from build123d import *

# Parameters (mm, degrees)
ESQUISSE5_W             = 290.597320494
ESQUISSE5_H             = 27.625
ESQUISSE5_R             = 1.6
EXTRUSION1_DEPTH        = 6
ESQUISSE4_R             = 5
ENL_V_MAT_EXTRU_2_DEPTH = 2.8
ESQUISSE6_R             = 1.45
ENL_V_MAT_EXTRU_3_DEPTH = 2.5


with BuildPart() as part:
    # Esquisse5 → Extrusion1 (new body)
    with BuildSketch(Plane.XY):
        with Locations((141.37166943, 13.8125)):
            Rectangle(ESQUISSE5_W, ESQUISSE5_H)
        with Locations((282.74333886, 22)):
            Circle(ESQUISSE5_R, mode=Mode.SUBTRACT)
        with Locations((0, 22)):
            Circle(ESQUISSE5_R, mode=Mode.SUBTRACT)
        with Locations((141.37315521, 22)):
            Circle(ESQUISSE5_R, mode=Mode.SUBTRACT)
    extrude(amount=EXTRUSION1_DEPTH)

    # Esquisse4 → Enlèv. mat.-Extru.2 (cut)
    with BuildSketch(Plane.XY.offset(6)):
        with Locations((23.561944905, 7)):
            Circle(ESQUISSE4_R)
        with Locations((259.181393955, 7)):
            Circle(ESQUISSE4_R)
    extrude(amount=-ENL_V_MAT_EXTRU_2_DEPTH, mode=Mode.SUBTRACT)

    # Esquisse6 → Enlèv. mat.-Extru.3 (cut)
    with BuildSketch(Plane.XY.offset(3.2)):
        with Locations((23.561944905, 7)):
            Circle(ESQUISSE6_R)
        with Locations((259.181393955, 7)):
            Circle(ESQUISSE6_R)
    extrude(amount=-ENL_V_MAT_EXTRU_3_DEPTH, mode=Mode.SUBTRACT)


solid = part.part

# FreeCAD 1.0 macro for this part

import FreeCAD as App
import Part
import Sketcher
from FreeCAD import Vector

doc = App.newDocument("Part")
body = doc.addObject("PartDesign::Body", "Body")

# Sketch on XY plane
sketch1 = body.newObject("Sketcher::SketchObject", "Sketch")
sketch1.AttachmentSupport = (doc.getObject("XY_Plane"), [""])
sketch1.MapMode = "FlatFace"
sketch1.addGeometry(Part.LineSegment(Vector(-3.9, 27.6, 0), Vector(-3.9, 0, 0)), False)
sketch1.addGeometry(Part.LineSegment(Vector(-3.9, 0, 0), Vector(286.7, 0, 0)), False)
sketch1.addGeometry(Part.LineSegment(Vector(286.7, 0, 0), Vector(286.7, 27.6, 0)), False)
sketch1.addGeometry(Part.LineSegment(Vector(286.7, 27.6, 0), Vector(-3.9, 27.6, 0)), False)
sketch1.addGeometry(Part.Circle(Vector(0, 22, 0), Vector(0, 0, 1), 1.6), False)
sketch1.addGeometry(Part.Circle(Vector(141.4, 22, 0), Vector(0, 0, 1), 1.6), False)
sketch1.addGeometry(Part.Circle(Vector(282.7, 22, 0), Vector(0, 0, 1), 1.6), False)
sketch1.addConstraint(Sketcher.Constraint("Coincident", 0, 2, 1, 1))
sketch1.addConstraint(Sketcher.Constraint("Coincident", 1, 2, 2, 1))
sketch1.addConstraint(Sketcher.Constraint("Coincident", 2, 2, 3, 1))
sketch1.addConstraint(Sketcher.Constraint("Coincident", 3, 2, 0, 1))
sketch1.addConstraint(Sketcher.Constraint("Vertical", 0))
sketch1.addConstraint(Sketcher.Constraint("Horizontal", 1))
sketch1.addConstraint(Sketcher.Constraint("Vertical", 2))
sketch1.addConstraint(Sketcher.Constraint("Horizontal", 3))
sketch1.addConstraint(Sketcher.Constraint("Equal", 4, 5))
sketch1.addConstraint(Sketcher.Constraint("Equal", 5, 6))
sketch1.addConstraint(Sketcher.Constraint("PointOnObject", 4, 3, -2))
sketch1.addConstraint(Sketcher.Constraint("PointOnObject", 0, 2, -1))
sketch1.addConstraint(Sketcher.Constraint("Horizontal", 4, 3, 5, 3))
sketch1.addConstraint(Sketcher.Constraint("Horizontal", 5, 3, 6, 3))
sketch1.addConstraint(Sketcher.Constraint("Diameter", 4, 3.2))
sketch1.addConstraint(Sketcher.Constraint("DistanceY", -1, 1, 4, 3, 22.0))
sketch1.addConstraint(Sketcher.Constraint("DistanceY", 0, 2, 0, 1, 27.625))
sketch1.addConstraint(Sketcher.Constraint("DistanceX", 1, 1, 1, 2, 290.59732))
sketch1.addConstraint(Sketcher.Constraint("DistanceX", -1, 1, 6, 3, 282.743339))
sketch1.addConstraint(Sketcher.Constraint("DistanceX", 0, 2, -1, 1, 3.926991))
sketch1.addConstraint(Sketcher.Constraint("DistanceX", -1, 1, 5, 3, 141.373155))
pad1 = body.newObject("PartDesign::Pad", "Pad")
pad1.Profile = sketch1
pad1.Length = 6

# Sketch on XY plane
sketch2 = body.newObject("Sketcher::SketchObject", "Sketch001")
sketch2.AttachmentSupport = (doc.getObject("XY_Plane"), [""])
sketch2.MapMode = "FlatFace"
sketch2.AttachmentOffset = App.Placement(Vector(0, 0, 6), App.Rotation())
sketch2.addGeometry(Part.Circle(Vector(24, 7, 0), Vector(0, 0, 1), 5), False)
sketch2.addGeometry(Part.Circle(Vector(259, 7, 0), Vector(0, 0, 1), 5), False)
sketch2.addConstraint(Sketcher.Constraint("Equal", 0, 1))
sketch2.addConstraint(Sketcher.Constraint("Horizontal", 0, 3, 1, 3))
sketch2.addConstraint(Sketcher.Constraint("Diameter", 0, 10.0))
sketch2.addConstraint(Sketcher.Constraint("DistanceY", -1, 1, 0, 3, 7.0))
sketch2.addConstraint(Sketcher.Constraint("DistanceX", 0, 3, 1, 3, 235.619449))
sketch2.addConstraint(Sketcher.Constraint("DistanceX", -1, 1, 0, 3, 23.561945))
pocket1 = body.newObject("PartDesign::Pocket", "Pocket")
pocket1.Profile = sketch2
pocket1.Length = 2.8

# Sketch on XY plane
sketch3 = body.newObject("Sketcher::SketchObject", "Sketch002")
sketch3.AttachmentSupport = (doc.getObject("XY_Plane"), [""])
sketch3.MapMode = "FlatFace"
sketch3.AttachmentOffset = App.Placement(Vector(0, 0, 3.2), App.Rotation())
sketch3.addGeometry(Part.Circle(Vector(23.6, 7, 0), Vector(0, 0, 1), 1.4), False)
sketch3.addGeometry(Part.Circle(Vector(259.2, 7, 0), Vector(0, 0, 1), 1.4), False)
sketch3.addConstraint(Sketcher.Constraint("Equal", 0, 1))
sketch3.addConstraint(Sketcher.Constraint("Horizontal", 0, 3, 1, 3))
sketch3.addConstraint(Sketcher.Constraint("Diameter", 0, 2.9))
sketch3.addConstraint(Sketcher.Constraint("DistanceY", -1, 1, 0, 3, 7.0))
sketch3.addConstraint(Sketcher.Constraint("DistanceX", 0, 3, 1, 3, 235.619449))
sketch3.addConstraint(Sketcher.Constraint("DistanceX", -1, 1, 0, 3, 23.561945))
pocket2 = body.newObject("PartDesign::Pocket", "Pocket001")
pocket2.Profile = sketch3
pocket2.Length = 2.5

doc.recompute()
